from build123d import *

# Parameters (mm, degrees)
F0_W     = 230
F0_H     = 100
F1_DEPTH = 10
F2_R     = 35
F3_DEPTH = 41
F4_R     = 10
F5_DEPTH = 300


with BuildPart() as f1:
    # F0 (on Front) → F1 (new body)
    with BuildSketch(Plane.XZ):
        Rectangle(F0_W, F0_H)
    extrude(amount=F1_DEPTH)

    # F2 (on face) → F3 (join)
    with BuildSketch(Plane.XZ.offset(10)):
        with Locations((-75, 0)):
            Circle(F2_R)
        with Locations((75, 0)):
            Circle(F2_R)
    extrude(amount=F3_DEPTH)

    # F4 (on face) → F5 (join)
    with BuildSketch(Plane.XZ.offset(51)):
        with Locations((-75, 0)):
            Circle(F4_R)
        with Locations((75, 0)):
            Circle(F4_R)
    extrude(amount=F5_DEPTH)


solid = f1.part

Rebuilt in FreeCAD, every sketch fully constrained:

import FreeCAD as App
import Part
import Sketcher
from FreeCAD import Vector

doc = App.newDocument("Part")
body = doc.addObject("PartDesign::Body", "Body")

sketch1 = body.newObject("Sketcher::SketchObject", "Sketch")
sketch1.AttachmentSupport = (doc.getObject("XZ_Plane"), [""])
sketch1.MapMode = "FlatFace"
sketch1.addGeometry([
    Part.LineSegment(Vector(-115, 50, 0), Vector(-115, -50, 0)),
    Part.LineSegment(Vector(-115, -50, 0), Vector(115, -50, 0)),
    Part.LineSegment(Vector(115, -50, 0), Vector(115, 50, 0)),
    Part.LineSegment(Vector(115, 50, 0), Vector(-115, 50, 0)),
], False)
sketch1.addConstraint([
    Sketcher.Constraint("Coincident", 0, 2, 1, 1),
    Sketcher.Constraint("Coincident", 1, 2, 2, 1),
    Sketcher.Constraint("Coincident", 2, 2, 3, 1),
    Sketcher.Constraint("Coincident", 3, 2, 0, 1),
    Sketcher.Constraint("Vertical", 0),
    Sketcher.Constraint("Horizontal", 1),
    Sketcher.Constraint("Vertical", 2),
    Sketcher.Constraint("Horizontal", 3),
    Sketcher.Constraint("Symmetric", 0, 2, 2, 2, -1, 1),
    Sketcher.Constraint("DistanceX", 1, 1, 1, 2, 230.0),
    Sketcher.Constraint("DistanceY", 0, 2, 0, 1, 100.0),
])
pad1 = body.newObject("PartDesign::Pad", "Pad")
pad1.Profile = sketch1
pad1.Length = 10

sketch2 = body.newObject("Sketcher::SketchObject", "Sketch001")
sketch2.AttachmentSupport = (doc.getObject("XZ_Plane"), [""])
sketch2.MapMode = "FlatFace"
sketch2.AttachmentOffset = App.Placement(Vector(0, 0, 10), App.Rotation())
sketch2.addGeometry([
    Part.Circle(Vector(-75, 0, 0), Vector(0, 0, 1), 35),
    Part.Circle(Vector(75, 0, 0), Vector(0, 0, 1), 35),
], False)
sketch2.addConstraint([
    Sketcher.Constraint("Equal", 0, 1),
    Sketcher.Constraint("Symmetric", 0, 3, 1, 3, -1, 1),
    Sketcher.Constraint("PointOnObject", 0, 3, -1),
    Sketcher.Constraint("Diameter", 0, 70.0),
    Sketcher.Constraint("DistanceX", 0, 3, -1, 1, 75.0),
])
pad2 = body.newObject("PartDesign::Pad", "Pad001")
pad2.Profile = sketch2
pad2.Length = 41

sketch3 = body.newObject("Sketcher::SketchObject", "Sketch002")
sketch3.AttachmentSupport = (doc.getObject("XZ_Plane"), [""])
sketch3.MapMode = "FlatFace"
sketch3.AttachmentOffset = App.Placement(Vector(0, 0, 51), App.Rotation())
sketch3.addGeometry([
    Part.Circle(Vector(-75, 0, 0), Vector(0, 0, 1), 10),
    Part.Circle(Vector(75, 0, 0), Vector(0, 0, 1), 10),
], False)
sketch3.addConstraint([
    Sketcher.Constraint("Equal", 0, 1),
    Sketcher.Constraint("Symmetric", 0, 3, 1, 3, -1, 1),
    Sketcher.Constraint("PointOnObject", 0, 3, -1),
    Sketcher.Constraint("Diameter", 0, 20.0),
    Sketcher.Constraint("DistanceX", 0, 3, -1, 1, 75.0),
])
pad3 = body.newObject("PartDesign::Pad", "Pad002")
pad3.Profile = sketch3
pad3.Length = 300

doc.recompute()
